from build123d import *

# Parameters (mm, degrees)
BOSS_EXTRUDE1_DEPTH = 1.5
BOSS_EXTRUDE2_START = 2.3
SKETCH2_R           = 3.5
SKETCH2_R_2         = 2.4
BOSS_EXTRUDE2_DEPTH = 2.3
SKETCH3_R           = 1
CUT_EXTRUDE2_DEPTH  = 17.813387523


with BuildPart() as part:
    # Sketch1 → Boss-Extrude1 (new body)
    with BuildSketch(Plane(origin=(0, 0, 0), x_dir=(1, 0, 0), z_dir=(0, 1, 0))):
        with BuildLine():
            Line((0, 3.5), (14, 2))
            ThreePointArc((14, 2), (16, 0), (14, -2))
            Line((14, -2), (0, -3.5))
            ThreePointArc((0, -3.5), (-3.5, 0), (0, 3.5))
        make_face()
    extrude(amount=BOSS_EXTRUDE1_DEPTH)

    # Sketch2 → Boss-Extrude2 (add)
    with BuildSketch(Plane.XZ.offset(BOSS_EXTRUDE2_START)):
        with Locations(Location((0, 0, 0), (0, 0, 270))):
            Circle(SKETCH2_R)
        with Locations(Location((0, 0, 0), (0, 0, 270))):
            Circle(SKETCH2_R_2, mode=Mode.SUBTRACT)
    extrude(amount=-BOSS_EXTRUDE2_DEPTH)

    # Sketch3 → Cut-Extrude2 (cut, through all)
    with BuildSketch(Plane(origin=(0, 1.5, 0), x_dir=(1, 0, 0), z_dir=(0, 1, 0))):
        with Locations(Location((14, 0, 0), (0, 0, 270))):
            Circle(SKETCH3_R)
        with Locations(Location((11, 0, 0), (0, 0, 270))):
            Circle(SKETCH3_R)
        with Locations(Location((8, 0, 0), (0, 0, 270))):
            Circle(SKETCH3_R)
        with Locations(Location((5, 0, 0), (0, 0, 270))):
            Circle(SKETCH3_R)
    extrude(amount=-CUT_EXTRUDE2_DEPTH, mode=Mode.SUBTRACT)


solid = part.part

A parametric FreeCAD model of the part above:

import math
import FreeCAD as App
import Part
import Sketcher

doc = App.newDocument("Part")
params = doc.addObject("Spreadsheet::Sheet", "Params")
for row, (alias, value) in enumerate([
    ("sketch1_radius", "2 mm"),
    ("sketch1_radius2", "3.5 mm"),
    ("pad1_length", "1.5 mm"),
    ("sketch2_diameter", "7 mm"),
    ("sketch2_diameter2", "4.8 mm"),
    ("pad2_length", "2.3 mm"),
    ("sketch3_diameter", "2 mm"),
], start=1):
    params.set(f"A{row}", alias)
    params.set(f"B{row}", "=" + value)
    params.setAlias(f"B{row}", alias)

body = doc.addObject("PartDesign::Body", "Body")

sketch1 = body.newObject("Sketcher::SketchObject", "Sketch")
sketch1.AttachmentSupport = (doc.getObject("XZ_Plane"), [""])
sketch1.MapMode = "FlatFace"
sketch1.addGeometry([
    Part.LineSegment(App.Vector(14, -2, 0), App.Vector(0, -3.5, 0)),
    Part.ArcOfCircle(Part.Circle(App.Vector(0, 0, 0), App.Vector(0, 0, 1), 3.5), math.radians(90), math.radians(270)),
    Part.LineSegment(App.Vector(0, 3.5, 0), App.Vector(14, 2, 0)),
    Part.ArcOfCircle(Part.Circle(App.Vector(14, 0, 0), App.Vector(0, 0, 1), 2), math.radians(-90), math.radians(90)),
], False)
sketch1.addConstraint([
    Sketcher.Constraint("Coincident", 0, 2, 1, 2),
    Sketcher.Constraint("Coincident", 1, 1, 2, 1),
    Sketcher.Constraint("Coincident", 2, 2, 3, 2),
    Sketcher.Constraint("Coincident", 3, 1, 0, 1),
    Sketcher.Constraint("Coincident", 1, 3, -1, 1),
    Sketcher.Constraint("Symmetric", 2, 2, 3, 1, -1),
    Sketcher.Constraint("PointOnObject", 0, 2, -2),
    Sketcher.Constraint("PointOnObject", 1, 1, -2),
    Sketcher.Constraint("Vertical", 3, 3, 2, 2),
    Sketcher.Constraint("Radius", 3, 2.0),
    Sketcher.Constraint("Radius", 1, 3.5),
    Sketcher.Constraint("DistanceX", -1, 1, 3, 3, 14.0),
])
sketch1.setExpression("Constraints[9]", "Params.sketch1_radius")
sketch1.setExpression("Constraints[10]", "Params.sketch1_radius2")
pad1 = body.newObject("PartDesign::Pad", "Pad")
pad1.Profile = sketch1
pad1.setExpression("Length", "Params.pad1_length")
pad1.Reversed = True

sketch2 = body.newObject("Sketcher::SketchObject", "Sketch001")
sketch2.AttachmentSupport = (doc.getObject("XZ_Plane"), [""])
sketch2.MapMode = "FlatFace"
sketch2.AttachmentOffset = App.Placement(App.Vector(0, 0, 2.3), App.Rotation())
sketch2.addGeometry([
    Part.Circle(App.Vector(0, 0, 0), App.Vector(0, 0, 1), 3.5),
    Part.Circle(App.Vector(0, 0, 0), App.Vector(0, 0, 1), 2.4),
], False)
sketch2.addConstraint([
    Sketcher.Constraint("Coincident", 0, 3, -1, 1),
    Sketcher.Constraint("Coincident", 1, 3, -1, 1),
    Sketcher.Constraint("Diameter", 0, 7.0),
    Sketcher.Constraint("Diameter", 1, 4.8),
])
sketch2.setExpression("Constraints[2]", "Params.sketch2_diameter")
sketch2.setExpression("Constraints[3]", "Params.sketch2_diameter2")
pad2 = body.newObject("PartDesign::Pad", "Pad001")
pad2.Profile = sketch2
pad2.setExpression("Length", "Params.pad2_length")
pad2.Reversed = True

sketch3 = body.newObject("Sketcher::SketchObject", "Sketch002")
sketch3.AttachmentSupport = (doc.getObject("XZ_Plane"), [""])
sketch3.MapMode = "FlatFace"
sketch3.AttachmentOffset = App.Placement(App.Vector(0, 0, -1.5), App.Rotation())
sketch3.addGeometry([
    Part.Circle(App.Vector(14, 0, 0), App.Vector(0, 0, 1), 1),
    Part.Circle(App.Vector(11, 0, 0), App.Vector(0, 0, 1), 1),
    Part.Circle(App.Vector(8, 0, 0), App.Vector(0, 0, 1), 1),
    Part.Circle(App.Vector(5, 0, 0), App.Vector(0, 0, 1), 1),
], False)
sketch3.addConstraint([
    Sketcher.Constraint("Equal", 0, 1),
    Sketcher.Constraint("Equal", 1, 2),
    Sketcher.Constraint("Equal", 2, 3),
    Sketcher.Constraint("PointOnObject", 0, 3, -1),
    Sketcher.Constraint("PointOnObject", 1, 3, -1),
    Sketcher.Constraint("PointOnObject", 2, 3, -1),
    Sketcher.Constraint("PointOnObject", 3, 3, -1),
    Sketcher.Constraint("Diameter", 0, 2.0),
    Sketcher.Constraint("DistanceX", -1, 1, 0, 3, 14.0),
    Sketcher.Constraint("DistanceX", -1, 1, 1, 3, 11.0),
    Sketcher.Constraint("DistanceX", -1, 1, 2, 3, 8.0),
    Sketcher.Constraint("DistanceX", -1, 1, 3, 3, 5.0),
])
sketch3.setExpression("Constraints[7]", "Params.sketch3_diameter")
pocket1 = body.newObject("PartDesign::Pocket", "Pocket")
pocket1.Profile = sketch3
pocket1.Type = "ThroughAll"
pocket1.Reversed = True

doc.recompute()
